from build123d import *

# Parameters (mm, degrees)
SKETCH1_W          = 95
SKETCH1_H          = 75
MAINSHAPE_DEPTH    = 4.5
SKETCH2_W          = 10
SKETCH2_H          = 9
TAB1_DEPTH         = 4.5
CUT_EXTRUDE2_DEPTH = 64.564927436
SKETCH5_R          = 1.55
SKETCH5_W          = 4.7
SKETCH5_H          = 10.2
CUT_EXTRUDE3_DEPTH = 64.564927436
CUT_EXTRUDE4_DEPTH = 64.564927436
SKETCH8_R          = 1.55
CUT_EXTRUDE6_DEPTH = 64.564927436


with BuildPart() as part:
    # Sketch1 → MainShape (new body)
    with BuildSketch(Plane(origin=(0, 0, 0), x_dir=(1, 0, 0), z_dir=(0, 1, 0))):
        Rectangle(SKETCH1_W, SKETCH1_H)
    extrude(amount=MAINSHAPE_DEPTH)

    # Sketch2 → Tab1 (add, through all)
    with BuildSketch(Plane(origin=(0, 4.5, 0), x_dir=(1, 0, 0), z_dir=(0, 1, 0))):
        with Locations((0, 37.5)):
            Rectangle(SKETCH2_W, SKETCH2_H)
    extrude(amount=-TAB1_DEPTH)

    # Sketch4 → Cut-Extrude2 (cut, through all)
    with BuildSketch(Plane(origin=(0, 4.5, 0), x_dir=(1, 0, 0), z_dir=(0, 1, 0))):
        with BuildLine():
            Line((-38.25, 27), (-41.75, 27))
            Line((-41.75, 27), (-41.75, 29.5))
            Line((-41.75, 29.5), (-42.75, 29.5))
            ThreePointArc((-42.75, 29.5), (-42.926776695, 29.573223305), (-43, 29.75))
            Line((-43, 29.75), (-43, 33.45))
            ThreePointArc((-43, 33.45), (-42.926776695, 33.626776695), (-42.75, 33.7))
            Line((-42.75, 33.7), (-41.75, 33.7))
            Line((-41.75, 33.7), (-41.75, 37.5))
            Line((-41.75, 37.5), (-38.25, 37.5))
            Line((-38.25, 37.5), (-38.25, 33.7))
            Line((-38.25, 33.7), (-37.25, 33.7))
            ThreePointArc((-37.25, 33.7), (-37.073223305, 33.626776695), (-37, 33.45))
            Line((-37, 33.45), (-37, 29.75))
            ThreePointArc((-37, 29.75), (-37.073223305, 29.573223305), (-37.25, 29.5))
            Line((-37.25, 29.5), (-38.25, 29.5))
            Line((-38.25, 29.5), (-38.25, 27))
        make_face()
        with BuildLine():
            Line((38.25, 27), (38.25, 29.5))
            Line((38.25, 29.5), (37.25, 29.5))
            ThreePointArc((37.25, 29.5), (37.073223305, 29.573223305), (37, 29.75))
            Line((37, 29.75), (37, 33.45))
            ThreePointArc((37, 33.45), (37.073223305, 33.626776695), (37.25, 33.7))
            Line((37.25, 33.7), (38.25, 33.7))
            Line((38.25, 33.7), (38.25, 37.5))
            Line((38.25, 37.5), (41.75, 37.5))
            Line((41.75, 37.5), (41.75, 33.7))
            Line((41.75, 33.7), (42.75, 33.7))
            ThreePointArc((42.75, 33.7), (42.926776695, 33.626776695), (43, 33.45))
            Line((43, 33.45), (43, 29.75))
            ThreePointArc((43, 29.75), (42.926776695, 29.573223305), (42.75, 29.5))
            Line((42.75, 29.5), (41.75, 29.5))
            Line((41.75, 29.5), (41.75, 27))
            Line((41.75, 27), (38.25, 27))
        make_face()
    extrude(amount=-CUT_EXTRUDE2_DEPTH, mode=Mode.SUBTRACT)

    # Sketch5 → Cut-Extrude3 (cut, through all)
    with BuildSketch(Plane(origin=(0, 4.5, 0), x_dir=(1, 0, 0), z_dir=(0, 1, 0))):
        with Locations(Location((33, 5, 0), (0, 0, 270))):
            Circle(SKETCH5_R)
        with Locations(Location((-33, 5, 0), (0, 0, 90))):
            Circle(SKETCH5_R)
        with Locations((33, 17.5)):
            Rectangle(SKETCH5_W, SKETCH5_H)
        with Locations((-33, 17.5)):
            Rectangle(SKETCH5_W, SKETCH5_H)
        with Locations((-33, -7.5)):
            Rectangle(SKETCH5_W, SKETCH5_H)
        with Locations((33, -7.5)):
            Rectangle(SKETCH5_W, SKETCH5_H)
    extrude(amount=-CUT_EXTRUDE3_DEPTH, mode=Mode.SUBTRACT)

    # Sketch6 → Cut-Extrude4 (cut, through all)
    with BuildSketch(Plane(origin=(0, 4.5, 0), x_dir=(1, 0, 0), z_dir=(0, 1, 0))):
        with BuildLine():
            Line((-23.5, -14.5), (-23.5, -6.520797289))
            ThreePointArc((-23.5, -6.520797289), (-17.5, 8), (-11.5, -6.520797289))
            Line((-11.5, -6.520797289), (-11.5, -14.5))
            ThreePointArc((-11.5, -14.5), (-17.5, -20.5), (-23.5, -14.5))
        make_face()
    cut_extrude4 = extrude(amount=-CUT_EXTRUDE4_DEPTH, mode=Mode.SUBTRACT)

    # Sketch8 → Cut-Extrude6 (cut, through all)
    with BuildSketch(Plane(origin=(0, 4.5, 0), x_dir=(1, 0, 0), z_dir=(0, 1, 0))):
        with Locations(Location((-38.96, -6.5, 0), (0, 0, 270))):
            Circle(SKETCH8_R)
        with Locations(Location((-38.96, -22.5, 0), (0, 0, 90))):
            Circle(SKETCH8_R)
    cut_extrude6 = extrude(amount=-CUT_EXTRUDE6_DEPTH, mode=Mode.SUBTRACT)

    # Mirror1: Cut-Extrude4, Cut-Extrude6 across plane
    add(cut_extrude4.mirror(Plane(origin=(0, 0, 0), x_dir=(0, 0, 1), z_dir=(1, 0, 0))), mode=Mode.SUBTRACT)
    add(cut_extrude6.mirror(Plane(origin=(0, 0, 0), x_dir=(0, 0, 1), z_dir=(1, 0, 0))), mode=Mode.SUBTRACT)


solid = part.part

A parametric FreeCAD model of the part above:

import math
import FreeCAD as App
import Part
import Sketcher


def add_polygon(sketch, points):
    """Adds a closed chain of lines whose ends are joined by coincident constraints."""
    first, n = sketch.GeometryCount, len(points)
    for a, b in zip(points, points[1:] + points[:1]):
        sketch.addGeometry(Part.LineSegment(App.Vector(*a, 0), App.Vector(*b, 0)), False)
    for i in range(n):
        sketch.addConstraint(Sketcher.Constraint("Coincident", first + i, 2, first + (i + 1) % n, 1))

doc = App.newDocument("Part")
body = doc.addObject("PartDesign::Body", "Body")

# Sketch on XZ plane
sketch1 = body.newObject("Sketcher::SketchObject", "Sketch")
sketch1.AttachmentSupport = (doc.getObject("XZ_Plane"), [""])
sketch1.MapMode = "FlatFace"
add_polygon(sketch1, [(-47.5, -37.5), (-47.5, 37.5), (47.5, 37.5), (47.5, -37.5)])  # lines 0-3
sketch1.addConstraint(Sketcher.Constraint("Vertical", 0))
sketch1.addConstraint(Sketcher.Constraint("Horizontal", 1))
sketch1.addConstraint(Sketcher.Constraint("Vertical", 2))
sketch1.addConstraint(Sketcher.Constraint("Horizontal", 3))
sketch1.addConstraint(Sketcher.Constraint("Symmetric", 0, 2, 2, 2, -1, 1))
sketch1.addConstraint(Sketcher.Constraint("DistanceX", 1, 1, 1, 2, 95.0))
sketch1.addConstraint(Sketcher.Constraint("DistanceY", 0, 1, 0, 2, 75.0))
pad1 = body.newObject("PartDesign::Pad", "Pad")
pad1.Profile = sketch1
pad1.Length = 4.5
pad1.Reversed = True

# Sketch on XZ plane
sketch2 = body.newObject("Sketcher::SketchObject", "Sketch001")
sketch2.AttachmentSupport = (doc.getObject("XZ_Plane"), [""])
sketch2.MapMode = "FlatFace"
sketch2.AttachmentOffset = App.Placement(App.Vector(0, 0, -4.5), App.Rotation())
add_polygon(sketch2, [(-5, -42), (-5, -33), (5, -33), (5, -42)])  # lines 0-3
sketch2.addConstraint(Sketcher.Constraint("Vertical", 0))
sketch2.addConstraint(Sketcher.Constraint("Horizontal", 1))
sketch2.addConstraint(Sketcher.Constraint("Vertical", 2))
sketch2.addConstraint(Sketcher.Constraint("Horizontal", 3))
sketch2.addConstraint(Sketcher.Constraint("DistanceX", 1, 1, 1, 2, 10.0))
sketch2.addConstraint(Sketcher.Constraint("DistanceY", 0, 1, 0, 2, 9.0))
sketch2.addConstraint(Sketcher.Constraint("DistanceX", 0, 2, -1, 1, 5.0))
sketch2.addConstraint(Sketcher.Constraint("DistanceY", 0, 2, -1, 1, 33.0))
pad2 = body.newObject("PartDesign::Pad", "Pad001")
pad2.Profile = sketch2
pad2.Type = "UpToLast"

# Sketch on XZ plane
sketch3 = body.newObject("Sketcher::SketchObject", "Sketch002")
sketch3.AttachmentSupport = (doc.getObject("XZ_Plane"), [""])
sketch3.MapMode = "FlatFace"
sketch3.AttachmentOffset = App.Placement(App.Vector(0, 0, -4.5), App.Rotation())
sketch3.addGeometry(Part.LineSegment(App.Vector(-41.75, -27, 0), App.Vector(-38.25, -27, 0)), False)
sketch3.addGeometry(Part.LineSegment(App.Vector(-38.25, -27, 0), App.Vector(-38.25, -29.5, 0)), False)
sketch3.addGeometry(Part.LineSegment(App.Vector(-38.25, -29.5, 0), App.Vector(-37.25, -29.5, 0)), False)
sketch3.addGeometry(Part.ArcOfCircle(Part.Circle(App.Vector(-37.25, -29.75, 0), App.Vector(0, 0, 1), 0.25), math.radians(0), math.radians(90)), False)
sketch3.addGeometry(Part.LineSegment(App.Vector(-37, -29.75, 0), App.Vector(-37, -33.45, 0)), False)
sketch3.addGeometry(Part.ArcOfCircle(Part.Circle(App.Vector(-37.25, -33.45, 0), App.Vector(0, 0, 1), 0.25), math.radians(-90), math.radians(0)), False)
sketch3.addGeometry(Part.LineSegment(App.Vector(-37.25, -33.7, 0), App.Vector(-38.25, -33.7, 0)), False)
sketch3.addGeometry(Part.LineSegment(App.Vector(-38.25, -33.7, 0), App.Vector(-38.25, -37.5, 0)), False)
sketch3.addGeometry(Part.LineSegment(App.Vector(-38.25, -37.5, 0), App.Vector(-41.75, -37.5, 0)), False)
sketch3.addGeometry(Part.LineSegment(App.Vector(-41.75, -37.5, 0), App.Vector(-41.75, -33.7, 0)), False)
sketch3.addGeometry(Part.LineSegment(App.Vector(-41.75, -33.7, 0), App.Vector(-42.75, -33.7, 0)), False)
sketch3.addGeometry(Part.ArcOfCircle(Part.Circle(App.Vector(-42.75, -33.45, 0), App.Vector(0, 0, 1), 0.25), math.radians(-180), math.radians(-90)), False)
sketch3.addGeometry(Part.LineSegment(App.Vector(-43, -33.45, 0), App.Vector(-43, -29.75, 0)), False)
sketch3.addGeometry(Part.ArcOfCircle(Part.Circle(App.Vector(-42.75, -29.75, 0), App.Vector(0, 0, 1), 0.25), math.radians(90), math.radians(180)), False)
sketch3.addGeometry(Part.LineSegment(App.Vector(-42.75, -29.5, 0), App.Vector(-41.75, -29.5, 0)), False)
sketch3.addGeometry(Part.LineSegment(App.Vector(-41.75, -29.5, 0), App.Vector(-41.75, -27, 0)), False)
sketch3.addGeometry(Part.LineSegment(App.Vector(38.25, -29.5, 0), App.Vector(38.25, -27, 0)), False)
sketch3.addGeometry(Part.LineSegment(App.Vector(38.25, -27, 0), App.Vector(41.75, -27, 0)), False)
sketch3.addGeometry(Part.LineSegment(App.Vector(41.75, -27, 0), App.Vector(41.75, -29.5, 0)), False)
sketch3.addGeometry(Part.LineSegment(App.Vector(41.75, -29.5, 0), App.Vector(42.75, -29.5, 0)), False)
sketch3.addGeometry(Part.ArcOfCircle(Part.Circle(App.Vector(42.75, -29.75, 0), App.Vector(0, 0, 1), 0.25), math.radians(0), math.radians(90)), False)
sketch3.addGeometry(Part.LineSegment(App.Vector(43, -29.75, 0), App.Vector(43, -33.45, 0)), False)
sketch3.addGeometry(Part.ArcOfCircle(Part.Circle(App.Vector(42.75, -33.45, 0), App.Vector(0, 0, 1), 0.25), math.radians(-90), math.radians(0)), False)
sketch3.addGeometry(Part.LineSegment(App.Vector(42.75, -33.7, 0), App.Vector(41.75, -33.7, 0)), False)
sketch3.addGeometry(Part.LineSegment(App.Vector(41.75, -33.7, 0), App.Vector(41.75, -37.5, 0)), False)
sketch3.addGeometry(Part.LineSegment(App.Vector(41.75, -37.5, 0), App.Vector(38.25, -37.5, 0)), False)
sketch3.addGeometry(Part.LineSegment(App.Vector(38.25, -37.5, 0), App.Vector(38.25, -33.7, 0)), False)
sketch3.addGeometry(Part.LineSegment(App.Vector(38.25, -33.7, 0), App.Vector(37.25, -33.7, 0)), False)
sketch3.addGeometry(Part.ArcOfCircle(Part.Circle(App.Vector(37.25, -33.45, 0), App.Vector(0, 0, 1), 0.25), math.radians(-180), math.radians(-90)), False)
sketch3.addGeometry(Part.LineSegment(App.Vector(37, -33.45, 0), App.Vector(37, -29.75, 0)), False)
sketch3.addGeometry(Part.ArcOfCircle(Part.Circle(App.Vector(37.25, -29.75, 0), App.Vector(0, 0, 1), 0.25), math.radians(90), math.radians(180)), False)
sketch3.addGeometry(Part.LineSegment(App.Vector(37.25, -29.5, 0), App.Vector(38.25, -29.5, 0)), False)
sketch3.addConstraint(Sketcher.Constraint("Coincident", 0, 2, 1, 1))
sketch3.addConstraint(Sketcher.Constraint("Coincident", 1, 2, 2, 1))
sketch3.addConstraint(Sketcher.Constraint("Tangent", 2, 2, 3, 2))
sketch3.addConstraint(Sketcher.Constraint("Tangent", 3, 1, 4, 1))
sketch3.addConstraint(Sketcher.Constraint("Tangent", 4, 2, 5, 2))
sketch3.addConstraint(Sketcher.Constraint("Tangent", 5, 1, 6, 1))
sketch3.addConstraint(Sketcher.Constraint("Coincident", 6, 2, 7, 1))
sketch3.addConstraint(Sketcher.Constraint("Coincident", 7, 2, 8, 1))
sketch3.addConstraint(Sketcher.Constraint("Coincident", 8, 2, 9, 1))
sketch3.addConstraint(Sketcher.Constraint("Coincident", 9, 2, 10, 1))
sketch3.addConstraint(Sketcher.Constraint("Tangent", 10, 2, 11, 2))
sketch3.addConstraint(Sketcher.Constraint("Tangent", 11, 1, 12, 1))
sketch3.addConstraint(Sketcher.Constraint("Tangent", 12, 2, 13, 2))
sketch3.addConstraint(Sketcher.Constraint("Tangent", 13, 1, 14, 1))
sketch3.addConstraint(Sketcher.Constraint("Coincident", 14, 2, 15, 1))
sketch3.addConstraint(Sketcher.Constraint("Coincident", 15, 2, 0, 1))
sketch3.addConstraint(Sketcher.Constraint("Coincident", 16, 2, 17, 1))
sketch3.addConstraint(Sketcher.Constraint("Coincident", 17, 2, 18, 1))
sketch3.addConstraint(Sketcher.Constraint("Coincident", 18, 2, 19, 1))
sketch3.addConstraint(Sketcher.Constraint("Tangent", 19, 2, 20, 2))
sketch3.addConstraint(Sketcher.Constraint("Tangent", 20, 1, 21, 1))
sketch3.addConstraint(Sketcher.Constraint("Tangent", 21, 2, 22, 2))
sketch3.addConstraint(Sketcher.Constraint("Tangent", 22, 1, 23, 1))
sketch3.addConstraint(Sketcher.Constraint("Coincident", 23, 2, 24, 1))
sketch3.addConstraint(Sketcher.Constraint("Coincident", 24, 2, 25, 1))
sketch3.addConstraint(Sketcher.Constraint("Coincident", 25, 2, 26, 1))
sketch3.addConstraint(Sketcher.Constraint("Coincident", 26, 2, 27, 1))
sketch3.addConstraint(Sketcher.Constraint("Tangent", 27, 2, 28, 2))
sketch3.addConstraint(Sketcher.Constraint("Tangent", 28, 1, 29, 1))
sketch3.addConstraint(Sketcher.Constraint("Tangent", 29, 2, 30, 2))
sketch3.addConstraint(Sketcher.Constraint("Tangent", 30, 1, 31, 1))
sketch3.addConstraint(Sketcher.Constraint("Coincident", 31, 2, 16, 1))
sketch3.addConstraint(Sketcher.Constraint("Horizontal", 0))
sketch3.addConstraint(Sketcher.Constraint("Vertical", 1))
sketch3.addConstraint(Sketcher.Constraint("Horizontal", 2))
sketch3.addConstraint(Sketcher.Constraint("Vertical", 4))
sketch3.addConstraint(Sketcher.Constraint("Horizontal", 6))
sketch3.addConstraint(Sketcher.Constraint("Vertical", 7))
sketch3.addConstraint(Sketcher.Constraint("Horizontal", 8))
sketch3.addConstraint(Sketcher.Constraint("Vertical", 9))
sketch3.addConstraint(Sketcher.Constraint("Horizontal", 10))
sketch3.addConstraint(Sketcher.Constraint("Vertical", 12))
sketch3.addConstraint(Sketcher.Constraint("Horizontal", 14))
sketch3.addConstraint(Sketcher.Constraint("Vertical", 15))
sketch3.addConstraint(Sketcher.Constraint("Vertical", 16))
sketch3.addConstraint(Sketcher.Constraint("Horizontal", 17))
sketch3.addConstraint(Sketcher.Constraint("Vertical", 18))
sketch3.addConstraint(Sketcher.Constraint("Horizontal", 19))
sketch3.addConstraint(Sketcher.Constraint("Vertical", 21))
sketch3.addConstraint(Sketcher.Constraint("Horizontal", 23))
sketch3.addConstraint(Sketcher.Constraint("Vertical", 24))
sketch3.addConstraint(Sketcher.Constraint("Horizontal", 25))
sketch3.addConstraint(Sketcher.Constraint("Vertical", 26))
sketch3.addConstraint(Sketcher.Constraint("Horizontal", 27))
sketch3.addConstraint(Sketcher.Constraint("Vertical", 29))
sketch3.addConstraint(Sketcher.Constraint("Horizontal", 31))
sketch3.addConstraint(Sketcher.Constraint("Equal", 3, 5))
sketch3.addConstraint(Sketcher.Constraint("Equal", 5, 11))
sketch3.addConstraint(Sketcher.Constraint("Equal", 11, 13))
sketch3.addConstraint(Sketcher.Constraint("Equal", 13, 20))
sketch3.addConstraint(Sketcher.Constraint("Equal", 20, 22))
sketch3.addConstraint(Sketcher.Constraint("Equal", 22, 28))
sketch3.addConstraint(Sketcher.Constraint("Equal", 28, 30))
sketch3.addConstraint(Sketcher.Constraint("Symmetric", 13, 3, 20, 3, -2))
sketch3.addConstraint(Sketcher.Constraint("Symmetric", 5, 3, 28, 3, -2))
sketch3.addConstraint(Sketcher.Constraint("Symmetric", 0, 2, 16, 2, -2))
sketch3.addConstraint(Sketcher.Constraint("Symmetric", 9, 2, 23, 2, -2))
sketch3.addConstraint(Sketcher.Constraint("Symmetric", 7, 2, 25, 2, -2))
sketch3.addConstraint(Sketcher.Constraint("Horizontal", 5, 3, 11, 3))
sketch3.addConstraint(Sketcher.Constraint("Horizontal", 3, 3, 13, 3))
sketch3.addConstraint(Sketcher.Constraint("Horizontal", 20, 3, 30, 3))
sketch3.addConstraint(Sketcher.Constraint("Vertical", 1, 2, 6, 2))
sketch3.addConstraint(Sketcher.Constraint("Vertical", 9, 2, 14, 2))
sketch3.addConstraint(Sketcher.Constraint("Vertical", 18, 2, 23, 2))
sketch3.addConstraint(Sketcher.Constraint("Equal", 6, 10))
sketch3.addConstraint(Sketcher.Constraint("DistanceX", 2, 1, 2, 2, 1.0))
sketch3.addConstraint(Sketcher.Constraint("Radius", 3, 0.25))
sketch3.addConstraint(Sketcher.Constraint("DistanceX", 0, 1, 0, 2, 3.5))
sketch3.addConstraint(Sketcher.Constraint("DistanceY", 1, 2, 1, 1, 2.5))
sketch3.addConstraint(Sketcher.Constraint("DistanceY", 4, 2, 4, 1, 3.7))
sketch3.addConstraint(Sketcher.Constraint("DistanceY", 7, 2, 7, 1, 3.8))
sketch3.addConstraint(Sketcher.Constraint("DistanceY", 0, 2, -1, 1, 27.0))
sketch3.addConstraint(Sketcher.Constraint("DistanceX", 3, 1, -1, 1, 37.0))
pocket1 = body.newObject("PartDesign::Pocket", "Pocket")
pocket1.Profile = sketch3
pocket1.Type = "ThroughAll"
pocket1.Reversed = True

# Sketch on XZ plane
sketch4 = body.newObject("Sketcher::SketchObject", "Sketch003")
sketch4.AttachmentSupport = (doc.getObject("XZ_Plane"), [""])
sketch4.MapMode = "FlatFace"
sketch4.AttachmentOffset = App.Placement(App.Vector(0, 0, -4.5), App.Rotation())
sketch4.addGeometry(Part.Circle(App.Vector(33, -5, 0), App.Vector(0, 0, 1), 1.55), False)  # 0
sketch4.addGeometry(Part.Circle(App.Vector(-33, -5, 0), App.Vector(0, 0, 1), 1.55), False)  # 1
add_polygon(sketch4, [(30.65, -22.6), (30.65, -12.4), (35.35, -12.4), (35.35, -22.6)])  # lines 2-5
add_polygon(sketch4, [(-35.35, -22.6), (-35.35, -12.4), (-30.65, -12.4), (-30.65, -22.6)])  # lines 6-9
add_polygon(sketch4, [(-35.35, 2.4), (-35.35, 12.6), (-30.65, 12.6), (-30.65, 2.4)])  # lines 10-13
add_polygon(sketch4, [(30.65, 2.4), (30.65, 12.6), (35.35, 12.6), (35.35, 2.4)])  # lines 14-17
sketch4.addConstraint(Sketcher.Constraint("Vertical", 2))
sketch4.addConstraint(Sketcher.Constraint("Horizontal", 3))
sketch4.addConstraint(Sketcher.Constraint("Vertical", 4))
sketch4.addConstraint(Sketcher.Constraint("Horizontal", 5))
sketch4.addConstraint(Sketcher.Constraint("Vertical", 6))
sketch4.addConstraint(Sketcher.Constraint("Horizontal", 7))
sketch4.addConstraint(Sketcher.Constraint("Vertical", 8))
sketch4.addConstraint(Sketcher.Constraint("Horizontal", 9))
sketch4.addConstraint(Sketcher.Constraint("Vertical", 10))
sketch4.addConstraint(Sketcher.Constraint("Horizontal", 11))
sketch4.addConstraint(Sketcher.Constraint("Vertical", 12))
sketch4.addConstraint(Sketcher.Constraint("Horizontal", 13))
sketch4.addConstraint(Sketcher.Constraint("Vertical", 14))
sketch4.addConstraint(Sketcher.Constraint("Horizontal", 15))
sketch4.addConstraint(Sketcher.Constraint("Vertical", 16))
sketch4.addConstraint(Sketcher.Constraint("Horizontal", 17))
sketch4.addConstraint(Sketcher.Constraint("Equal", 0, 1))
sketch4.addConstraint(Sketcher.Constraint("Symmetric", 0, 3, 1, 3, -2))
sketch4.addConstraint(Sketcher.Constraint("Symmetric", 3, 2, 6, 2, -2))
sketch4.addConstraint(Sketcher.Constraint("Symmetric", 5, 2, 8, 2, -2))
sketch4.addConstraint(Sketcher.Constraint("Symmetric", 11, 2, 14, 2, -2))
sketch4.addConstraint(Sketcher.Constraint("Symmetric", 13, 2, 16, 2, -2))
sketch4.addConstraint(Sketcher.Constraint("Vertical", 9, 2, 10, 2))
sketch4.addConstraint(Sketcher.Constraint("Vertical", 8, 2, 11, 2))
sketch4.addConstraint(Sketcher.Constraint("Equal", 8, 10))
sketch4.addConstraint(Sketcher.Constraint("Diameter", 0, 3.1))
sketch4.addConstraint(Sketcher.Constraint("DistanceX", 3, 1, 3, 2, 4.7))
sketch4.addConstraint(Sketcher.Constraint("DistanceY", 2, 1, 2, 2, 10.2))
sketch4.addConstraint(Sketcher.Constraint("DistanceX", -1, 1, 0, 3, 33.0))
sketch4.addConstraint(Sketcher.Constraint("DistanceY", 0, 3, -1, 1, 5.0))
sketch4.addConstraint(Sketcher.Constraint("DistanceX", 6, 2, 2, 2, 66.0))
sketch4.addConstraint(Sketcher.Constraint("DistanceY", 6, 2, 10, 2, 25.0))
sketch4.addConstraint(Sketcher.Constraint("DistanceY", 2, 2, -1, 1, 12.4))
pocket2 = body.newObject("PartDesign::Pocket", "Pocket001")
pocket2.Profile = sketch4
pocket2.Type = "ThroughAll"
pocket2.Reversed = True

# Sketch on XZ plane
sketch5 = body.newObject("Sketcher::SketchObject", "Sketch004")
sketch5.AttachmentSupport = (doc.getObject("XZ_Plane"), [""])
sketch5.MapMode = "FlatFace"
sketch5.AttachmentOffset = App.Placement(App.Vector(0, 0, -4.5), App.Rotation())
sketch5.addGeometry(Part.LineSegment(App.Vector(-23.5, 6.520797, 0), App.Vector(-23.5, 14.5, 0)), False)
sketch5.addGeometry(Part.ArcOfCircle(Part.Circle(App.Vector(-17.5, 14.5, 0), App.Vector(0, 0, 1), 6), math.radians(0), math.radians(180)), False)
sketch5.addGeometry(Part.LineSegment(App.Vector(-11.5, 14.5, 0), App.Vector(-11.5, 6.520797, 0)), False)
sketch5.addGeometry(Part.ArcOfCircle(Part.Circle(App.Vector(-17.5, 0.5, 0), App.Vector(0, 0, 1), 8.5), math.radians(134.900872), math.radians(405.099128)), False)
sketch5.addConstraint(Sketcher.Constraint("Tangent", 0, 2, 1, 2))
sketch5.addConstraint(Sketcher.Constraint("Tangent", 1, 1, 2, 1))
sketch5.addConstraint(Sketcher.Constraint("Coincident", 2, 2, 3, 2))
sketch5.addConstraint(Sketcher.Constraint("Coincident", 3, 1, 0, 1))
sketch5.addConstraint(Sketcher.Constraint("Vertical", 0))
sketch5.addConstraint(Sketcher.Constraint("Vertical", 2))
sketch5.addConstraint(Sketcher.Constraint("Horizontal", 2, 2, 3, 1))
sketch5.addConstraint(Sketcher.Constraint("Radius", 1, 6.0))
sketch5.addConstraint(Sketcher.Constraint("Radius", 3, 8.5))
sketch5.addConstraint(Sketcher.Constraint("DistanceY", 3, 3, 1, 3, 14.0))
sketch5.addConstraint(Sketcher.Constraint("DistanceX", 1, 3, -1, 1, 17.5))
sketch5.addConstraint(Sketcher.Constraint("DistanceY", -1, 1, 1, 3, 14.5))
pocket3 = body.newObject("PartDesign::Pocket", "Pocket002")
pocket3.Profile = sketch5
pocket3.Type = "ThroughAll"
pocket3.Reversed = True

# Sketch on XZ plane
sketch6 = body.newObject("Sketcher::SketchObject", "Sketch005")
sketch6.AttachmentSupport = (doc.getObject("XZ_Plane"), [""])
sketch6.MapMode = "FlatFace"
sketch6.AttachmentOffset = App.Placement(App.Vector(0, 0, -4.5), App.Rotation())
sketch6.addGeometry(Part.Circle(App.Vector(-38.96, 6.5, 0), App.Vector(0, 0, 1), 1.55), False)
sketch6.addGeometry(Part.Circle(App.Vector(-38.96, 22.5, 0), App.Vector(0, 0, 1), 1.55), False)
sketch6.addConstraint(Sketcher.Constraint("Equal", 0, 1))
sketch6.addConstraint(Sketcher.Constraint("Vertical", 0, 3, 1, 3))
sketch6.addConstraint(Sketcher.Constraint("Diameter", 0, 3.1))
sketch6.addConstraint(Sketcher.Constraint("DistanceY", 0, 3, 1, 3, 16.0))
sketch6.addConstraint(Sketcher.Constraint("DistanceY", -1, 1, 0, 3, 6.5))
sketch6.addConstraint(Sketcher.Constraint("DistanceX", 0, 3, -1, 1, 38.96))
pocket4 = body.newObject("PartDesign::Pocket", "Pocket003")
pocket4.Profile = sketch6
pocket4.Type = "ThroughAll"
pocket4.Reversed = True
doc.recompute()

mirrored = body.newObject("PartDesign::Mirrored", "Mirrored")
mirrored.Originals = [pocket3, pocket4]
mirrored.MirrorPlane = (doc.getObject("YZ_Plane"), [""])
body.Tip = mirrored

doc.recompute()
